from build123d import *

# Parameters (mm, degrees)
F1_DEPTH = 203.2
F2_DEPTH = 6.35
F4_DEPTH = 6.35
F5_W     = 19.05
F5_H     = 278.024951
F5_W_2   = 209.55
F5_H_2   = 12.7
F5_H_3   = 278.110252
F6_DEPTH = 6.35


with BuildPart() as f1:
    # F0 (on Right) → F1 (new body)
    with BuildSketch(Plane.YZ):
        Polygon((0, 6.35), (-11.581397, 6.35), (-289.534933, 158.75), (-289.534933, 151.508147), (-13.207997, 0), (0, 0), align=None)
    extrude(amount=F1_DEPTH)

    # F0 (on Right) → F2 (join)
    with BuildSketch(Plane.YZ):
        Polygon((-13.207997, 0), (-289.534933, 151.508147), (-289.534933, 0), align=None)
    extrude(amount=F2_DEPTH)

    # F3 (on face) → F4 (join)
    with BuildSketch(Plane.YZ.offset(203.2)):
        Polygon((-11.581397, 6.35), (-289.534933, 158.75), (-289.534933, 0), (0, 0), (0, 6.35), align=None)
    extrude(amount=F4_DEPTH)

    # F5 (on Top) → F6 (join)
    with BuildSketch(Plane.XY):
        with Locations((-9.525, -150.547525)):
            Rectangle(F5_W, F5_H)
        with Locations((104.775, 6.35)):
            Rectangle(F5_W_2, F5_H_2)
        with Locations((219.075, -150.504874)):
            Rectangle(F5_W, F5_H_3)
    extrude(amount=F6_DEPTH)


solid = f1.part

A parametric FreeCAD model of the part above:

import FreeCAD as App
import Part
import Sketcher

V = App.Vector
Q = App.Units.Quantity


def add_polygon(sketch, points):
    """Adds a closed chain of lines whose ends are joined by coincident constraints."""
    first, n = sketch.GeometryCount, len(points)
    for a, b in zip(points, points[1:] + points[:1]):
        sketch.addGeometry(Part.LineSegment(App.Vector(*a, 0), App.Vector(*b, 0)), False)
    for i in range(n):
        sketch.addConstraint(Sketcher.Constraint("Coincident", first + i, 2, first + (i + 1) % n, 1))

doc = App.newDocument("Part")
body = doc.addObject("PartDesign::Body", "Body")

# Sketch on YZ plane
sketch1 = body.newObject("Sketcher::SketchObject", "Sketch")
sketch1.AttachmentSupport = (doc.getObject("YZ_Plane"), [""])
sketch1.MapMode = "FlatFace"
add_polygon(sketch1, [(0, 6.35), (-11.581397, 6.35), (-289.534933, 158.75), (-289.534933, 151.508147), (-13.207997, 0), (0, 0)])  # lines 0-5
sketch1.addConstraint(Sketcher.Constraint("Horizontal", 0))
sketch1.addConstraint(Sketcher.Constraint("Vertical", 2))
sketch1.addConstraint(Sketcher.Constraint("Horizontal", 4))
sketch1.addConstraint(Sketcher.Constraint("Vertical", 5))
sketch1.addConstraint(Sketcher.Constraint("Coincident", 4, 2, -1, 1))
sketch1.addConstraint(Sketcher.Constraint("Parallel", 1, 3))
sketch1.addConstraint(Sketcher.Constraint("DistanceY", 0, 2, 1, 2, Q("6 in")))
sketch1.addConstraint(Sketcher.Constraint("DistanceX", 4, 1, 4, 2, Q("0.5199999 in")))
sketch1.addConstraint(Sketcher.Constraint("DistanceY", 5, 1, 5, 2, Q("0.25 in")))
sketch1.addConstraint(Sketcher.Constraint("Distance", 1, Q("12.48 in")))
sketch1.addConstraint(Sketcher.Constraint("DistanceX", 3, 2, 0, 2, 1.6266))
pad1 = body.newObject("PartDesign::Pad", "Pad")
pad1.Profile = sketch1
pad1.Length = Q("8 in")

# Sketch on YZ plane
sketch2 = body.newObject("Sketcher::SketchObject", "Sketch001")
sketch2.AttachmentSupport = (doc.getObject("YZ_Plane"), [""])
sketch2.MapMode = "FlatFace"
add_polygon(sketch2, [(-13.207997, 0), (-289.534933, 151.508147), (-289.534933, 0)])  # lines 0-2
sketch2.addConstraint(Sketcher.Constraint("Vertical", 1))
sketch2.addConstraint(Sketcher.Constraint("Horizontal", 2))
sketch2.addConstraint(Sketcher.Constraint("PointOnObject", 1, 2, -1))
sketch2.addConstraint(Sketcher.Constraint("DistanceX", 2, 2, -1, 1, Q("0.5199999 in")))
sketch2.addConstraint(Sketcher.Constraint("DistanceX", 2, 1, 2, 2, 276.326936))
sketch2.addConstraint(Sketcher.Constraint("DistanceY", 1, 2, 1, 1, 151.508147))
pad2 = body.newObject("PartDesign::Pad", "Pad001")
pad2.Profile = sketch2
pad2.Length = Q("0.25 in")

# Sketch on YZ plane
sketch3 = body.newObject("Sketcher::SketchObject", "Sketch002")
sketch3.AttachmentSupport = (doc.getObject("YZ_Plane"), [""])
sketch3.MapMode = "FlatFace"
sketch3.AttachmentOffset = App.Placement(V(0, 0, 8 * 25.4), App.Rotation())
add_polygon(sketch3, [(-11.581397, 6.35), (-289.534933, 158.75), (-289.534933, 0), (0, 0), (0, 6.35)])  # lines 0-4
sketch3.addConstraint(Sketcher.Constraint("Vertical", 1))
sketch3.addConstraint(Sketcher.Constraint("Horizontal", 2))
sketch3.addConstraint(Sketcher.Constraint("Vertical", 3))
sketch3.addConstraint(Sketcher.Constraint("Horizontal", 4))
sketch3.addConstraint(Sketcher.Constraint("Coincident", 2, 2, -1, 1))
sketch3.addConstraint(Sketcher.Constraint("DistanceY", 3, 2, 0, 2, Q("6 in")))
sketch3.addConstraint(Sketcher.Constraint("DistanceY", 1, 2, 1, 1, Q("6.25 in")))
sketch3.addConstraint(Sketcher.Constraint("Distance", 0, Q("12.48 in")))
sketch3.addConstraint(Sketcher.Constraint("DistanceX", 2, 1, 2, 2, 289.534933))
pad3 = body.newObject("PartDesign::Pad", "Pad002")
pad3.Profile = sketch3
pad3.Length = Q("0.25 in")

# Sketch on XY plane
sketch4 = body.newObject("Sketcher::SketchObject", "Sketch003")
sketch4.AttachmentSupport = (doc.getObject("XY_Plane"), [""])
sketch4.MapMode = "FlatFace"
add_polygon(sketch4, [(-19.05, -11.535049), (-19.05, -289.560001), (0, -289.560001), (0, -11.535049)])  # lines 0-3
add_polygon(sketch4, [(0, 12.7), (0, 0), (209.55, 0), (209.55, 12.7)])  # lines 4-7
add_polygon(sketch4, [(209.55, -11.449748), (209.55, -289.56), (228.6, -289.56), (228.6, -11.449748)])  # lines 8-11
sketch4.addConstraint(Sketcher.Constraint("Vertical", 0))
sketch4.addConstraint(Sketcher.Constraint("Horizontal", 1))
sketch4.addConstraint(Sketcher.Constraint("Vertical", 2))
sketch4.addConstraint(Sketcher.Constraint("Horizontal", 3))
sketch4.addConstraint(Sketcher.Constraint("Vertical", 4))
sketch4.addConstraint(Sketcher.Constraint("Horizontal", 5))
sketch4.addConstraint(Sketcher.Constraint("Vertical", 6))
sketch4.addConstraint(Sketcher.Constraint("Horizontal", 7))
sketch4.addConstraint(Sketcher.Constraint("Vertical", 8))
sketch4.addConstraint(Sketcher.Constraint("Horizontal", 9))
sketch4.addConstraint(Sketcher.Constraint("Vertical", 10))
sketch4.addConstraint(Sketcher.Constraint("Horizontal", 11))
sketch4.addConstraint(Sketcher.Constraint("Coincident", 4, 2, -1, 1))
sketch4.addConstraint(Sketcher.Constraint("PointOnObject", 1, 2, -2))
sketch4.addConstraint(Sketcher.Constraint("Horizontal", 1, 2, 8, 2))
sketch4.addConstraint(Sketcher.Constraint("Vertical", 6, 2, 8, 2))
sketch4.addConstraint(Sketcher.Constraint("Equal", 3, 9))
sketch4.addConstraint(Sketcher.Constraint("DistanceY", 4, 2, 4, 1, Q("0.5 in")))
sketch4.addConstraint(Sketcher.Constraint("DistanceX", -1, 1, 9, 2, Q("9 in")))
sketch4.addConstraint(Sketcher.Constraint("DistanceX", 1, 1, 1, 2, Q("0.75 in")))
sketch4.addConstraint(Sketcher.Constraint("DistanceY", 0, 2, -1, 1, Q("11.4 in")))
sketch4.addConstraint(Sketcher.Constraint("DistanceY", 0, 2, 0, 1, 278.024951))
sketch4.addConstraint(Sketcher.Constraint("DistanceY", 8, 2, 8, 1, 278.110252))
pad4 = body.newObject("PartDesign::Pad", "Pad003")
pad4.Profile = sketch4
pad4.Length = Q("0.25 in")

doc.recompute()
